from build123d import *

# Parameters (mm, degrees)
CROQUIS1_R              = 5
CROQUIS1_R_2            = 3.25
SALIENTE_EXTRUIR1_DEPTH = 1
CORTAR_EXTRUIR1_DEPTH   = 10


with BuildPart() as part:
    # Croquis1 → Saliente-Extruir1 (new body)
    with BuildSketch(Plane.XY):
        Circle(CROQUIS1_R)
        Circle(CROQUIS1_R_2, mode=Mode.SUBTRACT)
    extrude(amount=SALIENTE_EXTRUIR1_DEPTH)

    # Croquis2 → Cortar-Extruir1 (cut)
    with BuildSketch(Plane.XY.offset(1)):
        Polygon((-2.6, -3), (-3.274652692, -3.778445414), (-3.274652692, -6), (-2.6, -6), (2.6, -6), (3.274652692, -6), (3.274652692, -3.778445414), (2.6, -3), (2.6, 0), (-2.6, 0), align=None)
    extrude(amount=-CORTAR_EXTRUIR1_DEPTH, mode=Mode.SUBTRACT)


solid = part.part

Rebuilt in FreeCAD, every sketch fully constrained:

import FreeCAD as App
import Part
import Sketcher

V = App.Vector
Q = App.Units.Quantity

doc = App.newDocument("Part")
body = doc.addObject("PartDesign::Body", "Body")

sketch1 = body.newObject("Sketcher::SketchObject", "Sketch")
sketch1.AttachmentSupport = (doc.getObject("XY_Plane"), [""])
sketch1.MapMode = "FlatFace"
sketch1.addGeometry(Part.Circle(V(0, 0, 0), V(0, 0, 1), 5), False)
sketch1.addGeometry(Part.Circle(V(0, 0, 0), V(0, 0, 1), 3.25), False)
sketch1.addConstraint(Sketcher.Constraint("Coincident", 0, 3, -1, 1))
sketch1.addConstraint(Sketcher.Constraint("Coincident", 1, 3, -1, 1))
sketch1.addConstraint(Sketcher.Constraint("Diameter", 0, Q("10 mm")))
sketch1.addConstraint(Sketcher.Constraint("Diameter", 1, Q("6.5 mm")))
pad1 = body.newObject("PartDesign::Pad", "Pad")
pad1.Profile = sketch1
pad1.Length = 1

sketch2 = body.newObject("Sketcher::SketchObject", "Sketch001")
sketch2.AttachmentSupport = (doc.getObject("XY_Plane"), [""])
sketch2.MapMode = "FlatFace"
sketch2.AttachmentOffset = App.Placement(V(0, 0, 1), App.Rotation())
sketch2.addGeometry(Part.LineSegment(V(-2.6, -3, 0), V(-3.274653, -3.778445, 0)), False)
sketch2.addGeometry(Part.LineSegment(V(-3.274653, -3.778445, 0), V(-3.274653, -6, 0)), False)
sketch2.addGeometry(Part.LineSegment(V(-3.274653, -6, 0), V(3.274653, -6, 0)), False)
sketch2.addGeometry(Part.LineSegment(V(3.274653, -6, 0), V(3.274653, -3.778445, 0)), False)
sketch2.addGeometry(Part.LineSegment(V(3.274653, -3.778445, 0), V(2.6, -3, 0)), False)
sketch2.addGeometry(Part.LineSegment(V(2.6, -3, 0), V(2.6, 0, 0)), False)
sketch2.addGeometry(Part.LineSegment(V(2.6, 0, 0), V(-2.6, 0, 0)), False)
sketch2.addGeometry(Part.LineSegment(V(-2.6, 0, 0), V(-2.6, -3, 0)), False)
sketch2.addConstraint(Sketcher.Constraint("Coincident", 0, 2, 1, 1))
sketch2.addConstraint(Sketcher.Constraint("Coincident", 1, 2, 2, 1))
sketch2.addConstraint(Sketcher.Constraint("Coincident", 2, 2, 3, 1))
sketch2.addConstraint(Sketcher.Constraint("Coincident", 3, 2, 4, 1))
sketch2.addConstraint(Sketcher.Constraint("Coincident", 4, 2, 5, 1))
sketch2.addConstraint(Sketcher.Constraint("Coincident", 5, 2, 6, 1))
sketch2.addConstraint(Sketcher.Constraint("Coincident", 6, 2, 7, 1))
sketch2.addConstraint(Sketcher.Constraint("Coincident", 7, 2, 0, 1))
sketch2.addConstraint(Sketcher.Constraint("Vertical", 1))
sketch2.addConstraint(Sketcher.Constraint("Horizontal", 2))
sketch2.addConstraint(Sketcher.Constraint("Vertical", 3))
sketch2.addConstraint(Sketcher.Constraint("Vertical", 5))
sketch2.addConstraint(Sketcher.Constraint("Horizontal", 6))
sketch2.addConstraint(Sketcher.Constraint("Vertical", 7))
sketch2.addConstraint(Sketcher.Constraint("Symmetric", 5, 2, 6, 2, -1, 1))
sketch2.addConstraint(Sketcher.Constraint("Symmetric", 0, 2, 3, 2, -2))
sketch2.addConstraint(Sketcher.Constraint("Horizontal", 4, 2, 7, 2))
sketch2.addConstraint(Sketcher.Constraint("DistanceY", 5, 1, 5, 2, Q("3 mm")))
sketch2.addConstraint(Sketcher.Constraint("DistanceX", 6, 2, 6, 1, Q("5.2 mm")))
sketch2.addConstraint(Sketcher.Constraint("DistanceY", 1, 2, -1, 1, Q("6 mm")))
sketch2.addConstraint(Sketcher.Constraint("DistanceX", 2, 1, 2, 2, Q("6.549305 mm")))
sketch2.addConstraint(Sketcher.Constraint("DistanceY", 1, 2, 1, 1, Q("2.221555 mm")))
pocket1 = body.newObject("PartDesign::Pocket", "Pocket")
pocket1.Profile = sketch2
pocket1.Length = 10

doc.recompute()
